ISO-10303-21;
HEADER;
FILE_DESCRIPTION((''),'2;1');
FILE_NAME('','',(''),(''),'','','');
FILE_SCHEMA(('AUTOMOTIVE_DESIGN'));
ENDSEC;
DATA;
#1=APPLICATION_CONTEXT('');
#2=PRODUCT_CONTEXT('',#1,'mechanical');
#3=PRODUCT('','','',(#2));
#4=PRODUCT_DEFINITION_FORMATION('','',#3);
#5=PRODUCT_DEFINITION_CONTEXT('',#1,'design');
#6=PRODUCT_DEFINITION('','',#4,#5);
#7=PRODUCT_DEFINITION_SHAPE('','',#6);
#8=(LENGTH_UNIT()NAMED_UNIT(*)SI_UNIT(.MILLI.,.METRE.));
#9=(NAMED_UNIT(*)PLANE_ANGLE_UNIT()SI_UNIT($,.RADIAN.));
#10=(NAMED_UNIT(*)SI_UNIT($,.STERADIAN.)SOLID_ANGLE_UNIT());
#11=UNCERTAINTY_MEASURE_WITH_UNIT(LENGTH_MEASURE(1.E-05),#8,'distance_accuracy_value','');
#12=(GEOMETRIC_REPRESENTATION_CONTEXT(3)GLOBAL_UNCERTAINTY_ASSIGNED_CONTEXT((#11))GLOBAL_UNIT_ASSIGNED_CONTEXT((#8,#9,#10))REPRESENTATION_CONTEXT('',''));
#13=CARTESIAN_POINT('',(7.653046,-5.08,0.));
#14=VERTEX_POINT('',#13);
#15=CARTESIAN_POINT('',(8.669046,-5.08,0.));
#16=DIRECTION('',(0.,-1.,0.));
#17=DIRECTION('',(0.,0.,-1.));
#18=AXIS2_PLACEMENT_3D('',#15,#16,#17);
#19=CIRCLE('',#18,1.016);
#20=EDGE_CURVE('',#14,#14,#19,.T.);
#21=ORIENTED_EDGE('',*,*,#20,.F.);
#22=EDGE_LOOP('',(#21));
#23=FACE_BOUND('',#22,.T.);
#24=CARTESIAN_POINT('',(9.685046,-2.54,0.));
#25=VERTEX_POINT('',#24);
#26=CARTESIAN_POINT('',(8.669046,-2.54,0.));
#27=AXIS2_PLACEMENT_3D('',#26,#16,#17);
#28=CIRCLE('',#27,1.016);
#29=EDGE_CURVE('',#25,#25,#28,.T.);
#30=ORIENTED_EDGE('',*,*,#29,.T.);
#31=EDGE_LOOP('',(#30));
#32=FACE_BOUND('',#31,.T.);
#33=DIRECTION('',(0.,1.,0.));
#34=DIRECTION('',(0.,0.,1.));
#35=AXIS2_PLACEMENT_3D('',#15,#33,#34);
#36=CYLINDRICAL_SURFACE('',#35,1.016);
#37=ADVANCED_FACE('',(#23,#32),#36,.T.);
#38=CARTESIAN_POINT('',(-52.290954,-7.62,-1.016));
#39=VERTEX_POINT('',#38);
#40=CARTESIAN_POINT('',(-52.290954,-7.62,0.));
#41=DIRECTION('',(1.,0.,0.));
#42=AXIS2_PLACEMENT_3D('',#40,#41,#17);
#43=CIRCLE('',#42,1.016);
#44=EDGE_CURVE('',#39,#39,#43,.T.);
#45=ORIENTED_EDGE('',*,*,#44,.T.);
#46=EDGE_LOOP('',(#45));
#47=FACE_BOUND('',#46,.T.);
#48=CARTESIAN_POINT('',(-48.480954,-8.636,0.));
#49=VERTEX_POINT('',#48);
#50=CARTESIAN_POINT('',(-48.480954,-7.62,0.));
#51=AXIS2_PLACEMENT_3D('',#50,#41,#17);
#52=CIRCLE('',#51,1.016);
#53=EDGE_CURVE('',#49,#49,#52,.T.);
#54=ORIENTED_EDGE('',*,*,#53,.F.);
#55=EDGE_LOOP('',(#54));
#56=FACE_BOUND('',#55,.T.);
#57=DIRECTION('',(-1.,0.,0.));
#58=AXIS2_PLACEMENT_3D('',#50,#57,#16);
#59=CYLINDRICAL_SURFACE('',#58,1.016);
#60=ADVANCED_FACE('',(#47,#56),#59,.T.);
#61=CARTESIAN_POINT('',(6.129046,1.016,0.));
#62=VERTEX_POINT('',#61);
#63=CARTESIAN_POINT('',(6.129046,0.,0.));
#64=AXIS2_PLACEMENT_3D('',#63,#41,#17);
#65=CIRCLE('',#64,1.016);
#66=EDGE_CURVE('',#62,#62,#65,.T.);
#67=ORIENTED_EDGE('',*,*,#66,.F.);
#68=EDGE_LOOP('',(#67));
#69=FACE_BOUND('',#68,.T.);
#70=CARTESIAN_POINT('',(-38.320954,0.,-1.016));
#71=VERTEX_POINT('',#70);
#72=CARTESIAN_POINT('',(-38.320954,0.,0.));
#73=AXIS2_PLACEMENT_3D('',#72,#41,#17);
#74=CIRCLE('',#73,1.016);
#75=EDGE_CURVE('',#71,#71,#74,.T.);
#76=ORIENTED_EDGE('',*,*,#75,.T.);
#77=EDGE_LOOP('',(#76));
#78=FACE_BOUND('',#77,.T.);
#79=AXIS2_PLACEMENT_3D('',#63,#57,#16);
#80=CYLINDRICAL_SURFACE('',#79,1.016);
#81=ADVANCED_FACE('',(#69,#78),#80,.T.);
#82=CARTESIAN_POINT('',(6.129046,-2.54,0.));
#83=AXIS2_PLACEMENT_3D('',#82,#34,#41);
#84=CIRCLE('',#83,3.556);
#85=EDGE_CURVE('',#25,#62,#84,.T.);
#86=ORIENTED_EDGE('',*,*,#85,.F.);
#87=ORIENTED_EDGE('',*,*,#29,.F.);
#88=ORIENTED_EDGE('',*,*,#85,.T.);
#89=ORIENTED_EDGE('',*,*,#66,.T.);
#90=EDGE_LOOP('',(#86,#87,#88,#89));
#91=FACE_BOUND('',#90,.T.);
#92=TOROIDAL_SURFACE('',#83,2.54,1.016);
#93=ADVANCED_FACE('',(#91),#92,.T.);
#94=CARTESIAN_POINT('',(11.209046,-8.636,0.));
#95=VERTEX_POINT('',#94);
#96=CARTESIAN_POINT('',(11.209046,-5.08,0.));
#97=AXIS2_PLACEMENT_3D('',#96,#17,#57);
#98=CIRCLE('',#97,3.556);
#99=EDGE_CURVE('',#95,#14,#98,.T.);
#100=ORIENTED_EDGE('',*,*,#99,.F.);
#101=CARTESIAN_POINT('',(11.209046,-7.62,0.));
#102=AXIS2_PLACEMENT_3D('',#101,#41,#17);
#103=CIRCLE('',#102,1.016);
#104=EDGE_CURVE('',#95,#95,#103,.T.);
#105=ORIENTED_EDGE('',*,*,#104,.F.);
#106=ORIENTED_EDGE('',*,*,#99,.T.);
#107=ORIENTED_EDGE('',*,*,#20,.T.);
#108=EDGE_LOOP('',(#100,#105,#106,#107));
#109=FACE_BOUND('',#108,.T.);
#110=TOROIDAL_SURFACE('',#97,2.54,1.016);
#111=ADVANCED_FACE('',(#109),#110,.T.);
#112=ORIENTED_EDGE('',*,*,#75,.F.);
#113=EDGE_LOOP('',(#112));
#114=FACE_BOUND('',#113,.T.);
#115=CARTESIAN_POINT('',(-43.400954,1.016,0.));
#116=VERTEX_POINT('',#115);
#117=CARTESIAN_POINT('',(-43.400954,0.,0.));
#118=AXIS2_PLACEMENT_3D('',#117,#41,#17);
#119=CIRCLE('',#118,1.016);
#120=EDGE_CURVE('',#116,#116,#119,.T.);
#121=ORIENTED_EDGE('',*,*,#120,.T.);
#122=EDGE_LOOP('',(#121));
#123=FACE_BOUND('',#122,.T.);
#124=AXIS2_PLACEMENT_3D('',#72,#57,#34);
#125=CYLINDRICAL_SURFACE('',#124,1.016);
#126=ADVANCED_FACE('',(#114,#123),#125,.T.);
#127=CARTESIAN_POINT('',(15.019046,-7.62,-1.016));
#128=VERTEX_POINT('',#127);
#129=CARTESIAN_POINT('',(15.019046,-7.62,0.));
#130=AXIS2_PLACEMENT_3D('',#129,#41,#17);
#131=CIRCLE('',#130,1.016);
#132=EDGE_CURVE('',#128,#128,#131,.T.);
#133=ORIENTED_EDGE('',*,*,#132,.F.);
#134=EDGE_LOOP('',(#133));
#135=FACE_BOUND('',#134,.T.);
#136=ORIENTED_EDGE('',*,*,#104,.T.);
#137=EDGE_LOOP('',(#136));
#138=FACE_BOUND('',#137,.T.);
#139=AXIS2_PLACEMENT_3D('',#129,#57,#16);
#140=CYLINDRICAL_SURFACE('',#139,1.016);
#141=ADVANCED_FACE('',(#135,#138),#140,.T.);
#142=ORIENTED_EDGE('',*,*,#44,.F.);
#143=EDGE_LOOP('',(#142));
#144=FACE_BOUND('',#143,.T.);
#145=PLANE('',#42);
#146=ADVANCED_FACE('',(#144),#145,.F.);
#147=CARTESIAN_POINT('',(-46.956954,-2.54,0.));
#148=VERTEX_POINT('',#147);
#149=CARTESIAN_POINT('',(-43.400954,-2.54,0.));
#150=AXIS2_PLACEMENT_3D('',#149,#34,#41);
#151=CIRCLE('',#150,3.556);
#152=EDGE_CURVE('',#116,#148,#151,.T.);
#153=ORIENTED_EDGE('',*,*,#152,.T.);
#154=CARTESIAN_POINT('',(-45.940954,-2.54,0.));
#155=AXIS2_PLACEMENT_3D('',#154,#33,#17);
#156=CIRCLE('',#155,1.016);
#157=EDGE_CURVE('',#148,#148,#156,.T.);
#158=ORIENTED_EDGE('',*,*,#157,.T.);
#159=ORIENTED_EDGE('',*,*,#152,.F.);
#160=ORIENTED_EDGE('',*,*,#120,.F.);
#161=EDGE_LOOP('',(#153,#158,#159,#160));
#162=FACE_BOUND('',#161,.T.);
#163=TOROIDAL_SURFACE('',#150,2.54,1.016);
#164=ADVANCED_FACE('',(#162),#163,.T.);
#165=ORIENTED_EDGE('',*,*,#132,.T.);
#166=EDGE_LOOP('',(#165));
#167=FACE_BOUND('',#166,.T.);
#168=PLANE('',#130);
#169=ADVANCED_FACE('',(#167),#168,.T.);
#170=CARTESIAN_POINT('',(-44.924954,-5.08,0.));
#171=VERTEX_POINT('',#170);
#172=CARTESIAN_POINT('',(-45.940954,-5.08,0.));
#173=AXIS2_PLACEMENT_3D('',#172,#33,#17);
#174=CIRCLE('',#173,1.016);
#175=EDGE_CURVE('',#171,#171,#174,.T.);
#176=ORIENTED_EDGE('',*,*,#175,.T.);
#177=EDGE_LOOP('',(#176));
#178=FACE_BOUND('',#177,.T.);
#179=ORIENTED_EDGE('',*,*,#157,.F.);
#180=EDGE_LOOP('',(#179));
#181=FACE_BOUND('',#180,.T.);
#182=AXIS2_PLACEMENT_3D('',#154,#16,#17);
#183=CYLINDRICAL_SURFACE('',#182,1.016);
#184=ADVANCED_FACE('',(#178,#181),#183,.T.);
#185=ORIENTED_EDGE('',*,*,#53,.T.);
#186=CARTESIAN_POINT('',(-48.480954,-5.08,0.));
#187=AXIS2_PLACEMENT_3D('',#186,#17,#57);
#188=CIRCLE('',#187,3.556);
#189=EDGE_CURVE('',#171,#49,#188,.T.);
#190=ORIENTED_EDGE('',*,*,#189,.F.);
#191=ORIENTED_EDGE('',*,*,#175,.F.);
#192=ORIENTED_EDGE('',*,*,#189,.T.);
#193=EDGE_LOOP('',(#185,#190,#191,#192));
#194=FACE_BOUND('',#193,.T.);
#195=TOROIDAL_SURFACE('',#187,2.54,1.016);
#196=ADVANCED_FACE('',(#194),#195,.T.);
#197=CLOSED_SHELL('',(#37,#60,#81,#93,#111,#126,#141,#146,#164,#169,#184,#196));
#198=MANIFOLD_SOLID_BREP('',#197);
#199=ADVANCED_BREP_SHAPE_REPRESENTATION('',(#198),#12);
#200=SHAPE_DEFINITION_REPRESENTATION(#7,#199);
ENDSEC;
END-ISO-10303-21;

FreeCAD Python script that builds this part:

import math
import FreeCAD as App
import Part
import Sketcher

V = App.Vector
Q = App.Units.Quantity

doc = App.newDocument("Part")
body = doc.addObject("PartDesign::Body", "Body")

# Sketch on YZ plane
sketch1 = doc.addObject("Sketcher::SketchObject", "Sketch")
body.addObject(sketch1)
sketch1.AttachmentSupport = (doc.YZ_Plane, [""])
sketch1.MapMode = "FlatFace"
sketch1.AttachmentOffset = App.Placement(V(0, 0, 15.019046), App.Rotation())
sketch1.addGeometry(Part.Circle(V(-7.62, 0, 0), V(0, 0, 1), 1.016), False)
sketch1.addConstraint([
    Sketcher.Constraint("PointOnObject", 0, 3, -1),
    Sketcher.Constraint("Diameter", 0, Q("0.08 in")),
    Sketcher.Constraint("DistanceX", 0, 3, -1, 1, Q("0.3 in")),
])

# Sketch on XY plane
sketch2 = doc.addObject("Sketcher::SketchObject", "Sketch001")
body.addObject(sketch2)
sketch2.AttachmentSupport = (doc.XY_Plane, [""])
sketch2.MapMode = "FlatFace"
sketch2.addGeometry([
    Part.LineSegment(V(15.019046, -7.62, 0), V(11.209046, -7.62, 0)),  # 0
    Part.ArcOfCircle(Part.Circle(V(11.209046, -5.08, 0), V(0, 0, 1), 2.54), math.radians(-180), math.radians(-90)),  # 1
    Part.LineSegment(V(8.669046, -5.08, 0), V(8.669046, -2.54, 0)),  # 2
    Part.ArcOfCircle(Part.Circle(V(6.129046, -2.54, 0), V(0, 0, 1), 2.54), math.radians(0), math.radians(90)),  # 3
    Part.LineSegment(V(6.129046, 0, 0), V(-43.400954, 0, 0)),  # 4
    Part.ArcOfCircle(Part.Circle(V(-43.400954, -2.54, 0), V(0, 0, 1), 2.54), math.radians(90), math.radians(180)),  # 5
    Part.LineSegment(V(-45.940954, -2.54, 0), V(-45.940954, -5.08, 0)),  # 6
    Part.ArcOfCircle(Part.Circle(V(-48.480954, -5.08, 0), V(0, 0, 1), 2.54), math.radians(-90), math.radians(0)),  # 7
    Part.LineSegment(V(-48.480954, -7.62, 0), V(-52.290954, -7.62, 0)),  # 8
], False)
sketch2.addConstraint([
    Sketcher.Constraint("Tangent", 0, 2, 1, 2),
    Sketcher.Constraint("Tangent", 1, 1, 2, 1),
    Sketcher.Constraint("Tangent", 2, 2, 3, 1),
    Sketcher.Constraint("Tangent", 3, 2, 4, 1),
    Sketcher.Constraint("Tangent", 4, 2, 5, 1),
    Sketcher.Constraint("Tangent", 5, 2, 6, 1),
    Sketcher.Constraint("Tangent", 6, 2, 7, 2),
    Sketcher.Constraint("Tangent", 7, 1, 8, 1),
    Sketcher.Constraint("Horizontal", 0),
    Sketcher.Constraint("Vertical", 2),
    Sketcher.Constraint("Horizontal", 4),
    Sketcher.Constraint("Vertical", 6),
    Sketcher.Constraint("Horizontal", 8),
    Sketcher.Constraint("Equal", 1, 3),
    Sketcher.Constraint("Equal", 3, 5),
    Sketcher.Constraint("Equal", 5, 7),
    Sketcher.Constraint("PointOnObject", 3, 2, -1),
    Sketcher.Constraint("Horizontal", 1, 3, 7, 3),
    Sketcher.Constraint("Equal", 0, 8),
    Sketcher.Constraint("Radius", 1, Q("0.1 in")),
    Sketcher.Constraint("DistanceY", 2, 1, 2, 2, Q("0.1 in")),
    Sketcher.Constraint("DistanceX", 0, 2, 0, 1, Q("0.15 in")),
    Sketcher.Constraint("DistanceX", 4, 2, 4, 1, Q("1.95 in")),
    Sketcher.Constraint("DistanceX", -1, 1, 1, 3, 11.209046),
])
doc.recompute()

additivepipe = doc.addObject("PartDesign::AdditivePipe", "AdditivePipe")
body.addObject(additivepipe)
additivepipe.Profile = sketch1
additivepipe.Spine = (sketch2, ["Edge1", "Edge2", "Edge3", "Edge4", "Edge5", "Edge6", "Edge7", "Edge8", "Edge9"])

doc.recompute()
